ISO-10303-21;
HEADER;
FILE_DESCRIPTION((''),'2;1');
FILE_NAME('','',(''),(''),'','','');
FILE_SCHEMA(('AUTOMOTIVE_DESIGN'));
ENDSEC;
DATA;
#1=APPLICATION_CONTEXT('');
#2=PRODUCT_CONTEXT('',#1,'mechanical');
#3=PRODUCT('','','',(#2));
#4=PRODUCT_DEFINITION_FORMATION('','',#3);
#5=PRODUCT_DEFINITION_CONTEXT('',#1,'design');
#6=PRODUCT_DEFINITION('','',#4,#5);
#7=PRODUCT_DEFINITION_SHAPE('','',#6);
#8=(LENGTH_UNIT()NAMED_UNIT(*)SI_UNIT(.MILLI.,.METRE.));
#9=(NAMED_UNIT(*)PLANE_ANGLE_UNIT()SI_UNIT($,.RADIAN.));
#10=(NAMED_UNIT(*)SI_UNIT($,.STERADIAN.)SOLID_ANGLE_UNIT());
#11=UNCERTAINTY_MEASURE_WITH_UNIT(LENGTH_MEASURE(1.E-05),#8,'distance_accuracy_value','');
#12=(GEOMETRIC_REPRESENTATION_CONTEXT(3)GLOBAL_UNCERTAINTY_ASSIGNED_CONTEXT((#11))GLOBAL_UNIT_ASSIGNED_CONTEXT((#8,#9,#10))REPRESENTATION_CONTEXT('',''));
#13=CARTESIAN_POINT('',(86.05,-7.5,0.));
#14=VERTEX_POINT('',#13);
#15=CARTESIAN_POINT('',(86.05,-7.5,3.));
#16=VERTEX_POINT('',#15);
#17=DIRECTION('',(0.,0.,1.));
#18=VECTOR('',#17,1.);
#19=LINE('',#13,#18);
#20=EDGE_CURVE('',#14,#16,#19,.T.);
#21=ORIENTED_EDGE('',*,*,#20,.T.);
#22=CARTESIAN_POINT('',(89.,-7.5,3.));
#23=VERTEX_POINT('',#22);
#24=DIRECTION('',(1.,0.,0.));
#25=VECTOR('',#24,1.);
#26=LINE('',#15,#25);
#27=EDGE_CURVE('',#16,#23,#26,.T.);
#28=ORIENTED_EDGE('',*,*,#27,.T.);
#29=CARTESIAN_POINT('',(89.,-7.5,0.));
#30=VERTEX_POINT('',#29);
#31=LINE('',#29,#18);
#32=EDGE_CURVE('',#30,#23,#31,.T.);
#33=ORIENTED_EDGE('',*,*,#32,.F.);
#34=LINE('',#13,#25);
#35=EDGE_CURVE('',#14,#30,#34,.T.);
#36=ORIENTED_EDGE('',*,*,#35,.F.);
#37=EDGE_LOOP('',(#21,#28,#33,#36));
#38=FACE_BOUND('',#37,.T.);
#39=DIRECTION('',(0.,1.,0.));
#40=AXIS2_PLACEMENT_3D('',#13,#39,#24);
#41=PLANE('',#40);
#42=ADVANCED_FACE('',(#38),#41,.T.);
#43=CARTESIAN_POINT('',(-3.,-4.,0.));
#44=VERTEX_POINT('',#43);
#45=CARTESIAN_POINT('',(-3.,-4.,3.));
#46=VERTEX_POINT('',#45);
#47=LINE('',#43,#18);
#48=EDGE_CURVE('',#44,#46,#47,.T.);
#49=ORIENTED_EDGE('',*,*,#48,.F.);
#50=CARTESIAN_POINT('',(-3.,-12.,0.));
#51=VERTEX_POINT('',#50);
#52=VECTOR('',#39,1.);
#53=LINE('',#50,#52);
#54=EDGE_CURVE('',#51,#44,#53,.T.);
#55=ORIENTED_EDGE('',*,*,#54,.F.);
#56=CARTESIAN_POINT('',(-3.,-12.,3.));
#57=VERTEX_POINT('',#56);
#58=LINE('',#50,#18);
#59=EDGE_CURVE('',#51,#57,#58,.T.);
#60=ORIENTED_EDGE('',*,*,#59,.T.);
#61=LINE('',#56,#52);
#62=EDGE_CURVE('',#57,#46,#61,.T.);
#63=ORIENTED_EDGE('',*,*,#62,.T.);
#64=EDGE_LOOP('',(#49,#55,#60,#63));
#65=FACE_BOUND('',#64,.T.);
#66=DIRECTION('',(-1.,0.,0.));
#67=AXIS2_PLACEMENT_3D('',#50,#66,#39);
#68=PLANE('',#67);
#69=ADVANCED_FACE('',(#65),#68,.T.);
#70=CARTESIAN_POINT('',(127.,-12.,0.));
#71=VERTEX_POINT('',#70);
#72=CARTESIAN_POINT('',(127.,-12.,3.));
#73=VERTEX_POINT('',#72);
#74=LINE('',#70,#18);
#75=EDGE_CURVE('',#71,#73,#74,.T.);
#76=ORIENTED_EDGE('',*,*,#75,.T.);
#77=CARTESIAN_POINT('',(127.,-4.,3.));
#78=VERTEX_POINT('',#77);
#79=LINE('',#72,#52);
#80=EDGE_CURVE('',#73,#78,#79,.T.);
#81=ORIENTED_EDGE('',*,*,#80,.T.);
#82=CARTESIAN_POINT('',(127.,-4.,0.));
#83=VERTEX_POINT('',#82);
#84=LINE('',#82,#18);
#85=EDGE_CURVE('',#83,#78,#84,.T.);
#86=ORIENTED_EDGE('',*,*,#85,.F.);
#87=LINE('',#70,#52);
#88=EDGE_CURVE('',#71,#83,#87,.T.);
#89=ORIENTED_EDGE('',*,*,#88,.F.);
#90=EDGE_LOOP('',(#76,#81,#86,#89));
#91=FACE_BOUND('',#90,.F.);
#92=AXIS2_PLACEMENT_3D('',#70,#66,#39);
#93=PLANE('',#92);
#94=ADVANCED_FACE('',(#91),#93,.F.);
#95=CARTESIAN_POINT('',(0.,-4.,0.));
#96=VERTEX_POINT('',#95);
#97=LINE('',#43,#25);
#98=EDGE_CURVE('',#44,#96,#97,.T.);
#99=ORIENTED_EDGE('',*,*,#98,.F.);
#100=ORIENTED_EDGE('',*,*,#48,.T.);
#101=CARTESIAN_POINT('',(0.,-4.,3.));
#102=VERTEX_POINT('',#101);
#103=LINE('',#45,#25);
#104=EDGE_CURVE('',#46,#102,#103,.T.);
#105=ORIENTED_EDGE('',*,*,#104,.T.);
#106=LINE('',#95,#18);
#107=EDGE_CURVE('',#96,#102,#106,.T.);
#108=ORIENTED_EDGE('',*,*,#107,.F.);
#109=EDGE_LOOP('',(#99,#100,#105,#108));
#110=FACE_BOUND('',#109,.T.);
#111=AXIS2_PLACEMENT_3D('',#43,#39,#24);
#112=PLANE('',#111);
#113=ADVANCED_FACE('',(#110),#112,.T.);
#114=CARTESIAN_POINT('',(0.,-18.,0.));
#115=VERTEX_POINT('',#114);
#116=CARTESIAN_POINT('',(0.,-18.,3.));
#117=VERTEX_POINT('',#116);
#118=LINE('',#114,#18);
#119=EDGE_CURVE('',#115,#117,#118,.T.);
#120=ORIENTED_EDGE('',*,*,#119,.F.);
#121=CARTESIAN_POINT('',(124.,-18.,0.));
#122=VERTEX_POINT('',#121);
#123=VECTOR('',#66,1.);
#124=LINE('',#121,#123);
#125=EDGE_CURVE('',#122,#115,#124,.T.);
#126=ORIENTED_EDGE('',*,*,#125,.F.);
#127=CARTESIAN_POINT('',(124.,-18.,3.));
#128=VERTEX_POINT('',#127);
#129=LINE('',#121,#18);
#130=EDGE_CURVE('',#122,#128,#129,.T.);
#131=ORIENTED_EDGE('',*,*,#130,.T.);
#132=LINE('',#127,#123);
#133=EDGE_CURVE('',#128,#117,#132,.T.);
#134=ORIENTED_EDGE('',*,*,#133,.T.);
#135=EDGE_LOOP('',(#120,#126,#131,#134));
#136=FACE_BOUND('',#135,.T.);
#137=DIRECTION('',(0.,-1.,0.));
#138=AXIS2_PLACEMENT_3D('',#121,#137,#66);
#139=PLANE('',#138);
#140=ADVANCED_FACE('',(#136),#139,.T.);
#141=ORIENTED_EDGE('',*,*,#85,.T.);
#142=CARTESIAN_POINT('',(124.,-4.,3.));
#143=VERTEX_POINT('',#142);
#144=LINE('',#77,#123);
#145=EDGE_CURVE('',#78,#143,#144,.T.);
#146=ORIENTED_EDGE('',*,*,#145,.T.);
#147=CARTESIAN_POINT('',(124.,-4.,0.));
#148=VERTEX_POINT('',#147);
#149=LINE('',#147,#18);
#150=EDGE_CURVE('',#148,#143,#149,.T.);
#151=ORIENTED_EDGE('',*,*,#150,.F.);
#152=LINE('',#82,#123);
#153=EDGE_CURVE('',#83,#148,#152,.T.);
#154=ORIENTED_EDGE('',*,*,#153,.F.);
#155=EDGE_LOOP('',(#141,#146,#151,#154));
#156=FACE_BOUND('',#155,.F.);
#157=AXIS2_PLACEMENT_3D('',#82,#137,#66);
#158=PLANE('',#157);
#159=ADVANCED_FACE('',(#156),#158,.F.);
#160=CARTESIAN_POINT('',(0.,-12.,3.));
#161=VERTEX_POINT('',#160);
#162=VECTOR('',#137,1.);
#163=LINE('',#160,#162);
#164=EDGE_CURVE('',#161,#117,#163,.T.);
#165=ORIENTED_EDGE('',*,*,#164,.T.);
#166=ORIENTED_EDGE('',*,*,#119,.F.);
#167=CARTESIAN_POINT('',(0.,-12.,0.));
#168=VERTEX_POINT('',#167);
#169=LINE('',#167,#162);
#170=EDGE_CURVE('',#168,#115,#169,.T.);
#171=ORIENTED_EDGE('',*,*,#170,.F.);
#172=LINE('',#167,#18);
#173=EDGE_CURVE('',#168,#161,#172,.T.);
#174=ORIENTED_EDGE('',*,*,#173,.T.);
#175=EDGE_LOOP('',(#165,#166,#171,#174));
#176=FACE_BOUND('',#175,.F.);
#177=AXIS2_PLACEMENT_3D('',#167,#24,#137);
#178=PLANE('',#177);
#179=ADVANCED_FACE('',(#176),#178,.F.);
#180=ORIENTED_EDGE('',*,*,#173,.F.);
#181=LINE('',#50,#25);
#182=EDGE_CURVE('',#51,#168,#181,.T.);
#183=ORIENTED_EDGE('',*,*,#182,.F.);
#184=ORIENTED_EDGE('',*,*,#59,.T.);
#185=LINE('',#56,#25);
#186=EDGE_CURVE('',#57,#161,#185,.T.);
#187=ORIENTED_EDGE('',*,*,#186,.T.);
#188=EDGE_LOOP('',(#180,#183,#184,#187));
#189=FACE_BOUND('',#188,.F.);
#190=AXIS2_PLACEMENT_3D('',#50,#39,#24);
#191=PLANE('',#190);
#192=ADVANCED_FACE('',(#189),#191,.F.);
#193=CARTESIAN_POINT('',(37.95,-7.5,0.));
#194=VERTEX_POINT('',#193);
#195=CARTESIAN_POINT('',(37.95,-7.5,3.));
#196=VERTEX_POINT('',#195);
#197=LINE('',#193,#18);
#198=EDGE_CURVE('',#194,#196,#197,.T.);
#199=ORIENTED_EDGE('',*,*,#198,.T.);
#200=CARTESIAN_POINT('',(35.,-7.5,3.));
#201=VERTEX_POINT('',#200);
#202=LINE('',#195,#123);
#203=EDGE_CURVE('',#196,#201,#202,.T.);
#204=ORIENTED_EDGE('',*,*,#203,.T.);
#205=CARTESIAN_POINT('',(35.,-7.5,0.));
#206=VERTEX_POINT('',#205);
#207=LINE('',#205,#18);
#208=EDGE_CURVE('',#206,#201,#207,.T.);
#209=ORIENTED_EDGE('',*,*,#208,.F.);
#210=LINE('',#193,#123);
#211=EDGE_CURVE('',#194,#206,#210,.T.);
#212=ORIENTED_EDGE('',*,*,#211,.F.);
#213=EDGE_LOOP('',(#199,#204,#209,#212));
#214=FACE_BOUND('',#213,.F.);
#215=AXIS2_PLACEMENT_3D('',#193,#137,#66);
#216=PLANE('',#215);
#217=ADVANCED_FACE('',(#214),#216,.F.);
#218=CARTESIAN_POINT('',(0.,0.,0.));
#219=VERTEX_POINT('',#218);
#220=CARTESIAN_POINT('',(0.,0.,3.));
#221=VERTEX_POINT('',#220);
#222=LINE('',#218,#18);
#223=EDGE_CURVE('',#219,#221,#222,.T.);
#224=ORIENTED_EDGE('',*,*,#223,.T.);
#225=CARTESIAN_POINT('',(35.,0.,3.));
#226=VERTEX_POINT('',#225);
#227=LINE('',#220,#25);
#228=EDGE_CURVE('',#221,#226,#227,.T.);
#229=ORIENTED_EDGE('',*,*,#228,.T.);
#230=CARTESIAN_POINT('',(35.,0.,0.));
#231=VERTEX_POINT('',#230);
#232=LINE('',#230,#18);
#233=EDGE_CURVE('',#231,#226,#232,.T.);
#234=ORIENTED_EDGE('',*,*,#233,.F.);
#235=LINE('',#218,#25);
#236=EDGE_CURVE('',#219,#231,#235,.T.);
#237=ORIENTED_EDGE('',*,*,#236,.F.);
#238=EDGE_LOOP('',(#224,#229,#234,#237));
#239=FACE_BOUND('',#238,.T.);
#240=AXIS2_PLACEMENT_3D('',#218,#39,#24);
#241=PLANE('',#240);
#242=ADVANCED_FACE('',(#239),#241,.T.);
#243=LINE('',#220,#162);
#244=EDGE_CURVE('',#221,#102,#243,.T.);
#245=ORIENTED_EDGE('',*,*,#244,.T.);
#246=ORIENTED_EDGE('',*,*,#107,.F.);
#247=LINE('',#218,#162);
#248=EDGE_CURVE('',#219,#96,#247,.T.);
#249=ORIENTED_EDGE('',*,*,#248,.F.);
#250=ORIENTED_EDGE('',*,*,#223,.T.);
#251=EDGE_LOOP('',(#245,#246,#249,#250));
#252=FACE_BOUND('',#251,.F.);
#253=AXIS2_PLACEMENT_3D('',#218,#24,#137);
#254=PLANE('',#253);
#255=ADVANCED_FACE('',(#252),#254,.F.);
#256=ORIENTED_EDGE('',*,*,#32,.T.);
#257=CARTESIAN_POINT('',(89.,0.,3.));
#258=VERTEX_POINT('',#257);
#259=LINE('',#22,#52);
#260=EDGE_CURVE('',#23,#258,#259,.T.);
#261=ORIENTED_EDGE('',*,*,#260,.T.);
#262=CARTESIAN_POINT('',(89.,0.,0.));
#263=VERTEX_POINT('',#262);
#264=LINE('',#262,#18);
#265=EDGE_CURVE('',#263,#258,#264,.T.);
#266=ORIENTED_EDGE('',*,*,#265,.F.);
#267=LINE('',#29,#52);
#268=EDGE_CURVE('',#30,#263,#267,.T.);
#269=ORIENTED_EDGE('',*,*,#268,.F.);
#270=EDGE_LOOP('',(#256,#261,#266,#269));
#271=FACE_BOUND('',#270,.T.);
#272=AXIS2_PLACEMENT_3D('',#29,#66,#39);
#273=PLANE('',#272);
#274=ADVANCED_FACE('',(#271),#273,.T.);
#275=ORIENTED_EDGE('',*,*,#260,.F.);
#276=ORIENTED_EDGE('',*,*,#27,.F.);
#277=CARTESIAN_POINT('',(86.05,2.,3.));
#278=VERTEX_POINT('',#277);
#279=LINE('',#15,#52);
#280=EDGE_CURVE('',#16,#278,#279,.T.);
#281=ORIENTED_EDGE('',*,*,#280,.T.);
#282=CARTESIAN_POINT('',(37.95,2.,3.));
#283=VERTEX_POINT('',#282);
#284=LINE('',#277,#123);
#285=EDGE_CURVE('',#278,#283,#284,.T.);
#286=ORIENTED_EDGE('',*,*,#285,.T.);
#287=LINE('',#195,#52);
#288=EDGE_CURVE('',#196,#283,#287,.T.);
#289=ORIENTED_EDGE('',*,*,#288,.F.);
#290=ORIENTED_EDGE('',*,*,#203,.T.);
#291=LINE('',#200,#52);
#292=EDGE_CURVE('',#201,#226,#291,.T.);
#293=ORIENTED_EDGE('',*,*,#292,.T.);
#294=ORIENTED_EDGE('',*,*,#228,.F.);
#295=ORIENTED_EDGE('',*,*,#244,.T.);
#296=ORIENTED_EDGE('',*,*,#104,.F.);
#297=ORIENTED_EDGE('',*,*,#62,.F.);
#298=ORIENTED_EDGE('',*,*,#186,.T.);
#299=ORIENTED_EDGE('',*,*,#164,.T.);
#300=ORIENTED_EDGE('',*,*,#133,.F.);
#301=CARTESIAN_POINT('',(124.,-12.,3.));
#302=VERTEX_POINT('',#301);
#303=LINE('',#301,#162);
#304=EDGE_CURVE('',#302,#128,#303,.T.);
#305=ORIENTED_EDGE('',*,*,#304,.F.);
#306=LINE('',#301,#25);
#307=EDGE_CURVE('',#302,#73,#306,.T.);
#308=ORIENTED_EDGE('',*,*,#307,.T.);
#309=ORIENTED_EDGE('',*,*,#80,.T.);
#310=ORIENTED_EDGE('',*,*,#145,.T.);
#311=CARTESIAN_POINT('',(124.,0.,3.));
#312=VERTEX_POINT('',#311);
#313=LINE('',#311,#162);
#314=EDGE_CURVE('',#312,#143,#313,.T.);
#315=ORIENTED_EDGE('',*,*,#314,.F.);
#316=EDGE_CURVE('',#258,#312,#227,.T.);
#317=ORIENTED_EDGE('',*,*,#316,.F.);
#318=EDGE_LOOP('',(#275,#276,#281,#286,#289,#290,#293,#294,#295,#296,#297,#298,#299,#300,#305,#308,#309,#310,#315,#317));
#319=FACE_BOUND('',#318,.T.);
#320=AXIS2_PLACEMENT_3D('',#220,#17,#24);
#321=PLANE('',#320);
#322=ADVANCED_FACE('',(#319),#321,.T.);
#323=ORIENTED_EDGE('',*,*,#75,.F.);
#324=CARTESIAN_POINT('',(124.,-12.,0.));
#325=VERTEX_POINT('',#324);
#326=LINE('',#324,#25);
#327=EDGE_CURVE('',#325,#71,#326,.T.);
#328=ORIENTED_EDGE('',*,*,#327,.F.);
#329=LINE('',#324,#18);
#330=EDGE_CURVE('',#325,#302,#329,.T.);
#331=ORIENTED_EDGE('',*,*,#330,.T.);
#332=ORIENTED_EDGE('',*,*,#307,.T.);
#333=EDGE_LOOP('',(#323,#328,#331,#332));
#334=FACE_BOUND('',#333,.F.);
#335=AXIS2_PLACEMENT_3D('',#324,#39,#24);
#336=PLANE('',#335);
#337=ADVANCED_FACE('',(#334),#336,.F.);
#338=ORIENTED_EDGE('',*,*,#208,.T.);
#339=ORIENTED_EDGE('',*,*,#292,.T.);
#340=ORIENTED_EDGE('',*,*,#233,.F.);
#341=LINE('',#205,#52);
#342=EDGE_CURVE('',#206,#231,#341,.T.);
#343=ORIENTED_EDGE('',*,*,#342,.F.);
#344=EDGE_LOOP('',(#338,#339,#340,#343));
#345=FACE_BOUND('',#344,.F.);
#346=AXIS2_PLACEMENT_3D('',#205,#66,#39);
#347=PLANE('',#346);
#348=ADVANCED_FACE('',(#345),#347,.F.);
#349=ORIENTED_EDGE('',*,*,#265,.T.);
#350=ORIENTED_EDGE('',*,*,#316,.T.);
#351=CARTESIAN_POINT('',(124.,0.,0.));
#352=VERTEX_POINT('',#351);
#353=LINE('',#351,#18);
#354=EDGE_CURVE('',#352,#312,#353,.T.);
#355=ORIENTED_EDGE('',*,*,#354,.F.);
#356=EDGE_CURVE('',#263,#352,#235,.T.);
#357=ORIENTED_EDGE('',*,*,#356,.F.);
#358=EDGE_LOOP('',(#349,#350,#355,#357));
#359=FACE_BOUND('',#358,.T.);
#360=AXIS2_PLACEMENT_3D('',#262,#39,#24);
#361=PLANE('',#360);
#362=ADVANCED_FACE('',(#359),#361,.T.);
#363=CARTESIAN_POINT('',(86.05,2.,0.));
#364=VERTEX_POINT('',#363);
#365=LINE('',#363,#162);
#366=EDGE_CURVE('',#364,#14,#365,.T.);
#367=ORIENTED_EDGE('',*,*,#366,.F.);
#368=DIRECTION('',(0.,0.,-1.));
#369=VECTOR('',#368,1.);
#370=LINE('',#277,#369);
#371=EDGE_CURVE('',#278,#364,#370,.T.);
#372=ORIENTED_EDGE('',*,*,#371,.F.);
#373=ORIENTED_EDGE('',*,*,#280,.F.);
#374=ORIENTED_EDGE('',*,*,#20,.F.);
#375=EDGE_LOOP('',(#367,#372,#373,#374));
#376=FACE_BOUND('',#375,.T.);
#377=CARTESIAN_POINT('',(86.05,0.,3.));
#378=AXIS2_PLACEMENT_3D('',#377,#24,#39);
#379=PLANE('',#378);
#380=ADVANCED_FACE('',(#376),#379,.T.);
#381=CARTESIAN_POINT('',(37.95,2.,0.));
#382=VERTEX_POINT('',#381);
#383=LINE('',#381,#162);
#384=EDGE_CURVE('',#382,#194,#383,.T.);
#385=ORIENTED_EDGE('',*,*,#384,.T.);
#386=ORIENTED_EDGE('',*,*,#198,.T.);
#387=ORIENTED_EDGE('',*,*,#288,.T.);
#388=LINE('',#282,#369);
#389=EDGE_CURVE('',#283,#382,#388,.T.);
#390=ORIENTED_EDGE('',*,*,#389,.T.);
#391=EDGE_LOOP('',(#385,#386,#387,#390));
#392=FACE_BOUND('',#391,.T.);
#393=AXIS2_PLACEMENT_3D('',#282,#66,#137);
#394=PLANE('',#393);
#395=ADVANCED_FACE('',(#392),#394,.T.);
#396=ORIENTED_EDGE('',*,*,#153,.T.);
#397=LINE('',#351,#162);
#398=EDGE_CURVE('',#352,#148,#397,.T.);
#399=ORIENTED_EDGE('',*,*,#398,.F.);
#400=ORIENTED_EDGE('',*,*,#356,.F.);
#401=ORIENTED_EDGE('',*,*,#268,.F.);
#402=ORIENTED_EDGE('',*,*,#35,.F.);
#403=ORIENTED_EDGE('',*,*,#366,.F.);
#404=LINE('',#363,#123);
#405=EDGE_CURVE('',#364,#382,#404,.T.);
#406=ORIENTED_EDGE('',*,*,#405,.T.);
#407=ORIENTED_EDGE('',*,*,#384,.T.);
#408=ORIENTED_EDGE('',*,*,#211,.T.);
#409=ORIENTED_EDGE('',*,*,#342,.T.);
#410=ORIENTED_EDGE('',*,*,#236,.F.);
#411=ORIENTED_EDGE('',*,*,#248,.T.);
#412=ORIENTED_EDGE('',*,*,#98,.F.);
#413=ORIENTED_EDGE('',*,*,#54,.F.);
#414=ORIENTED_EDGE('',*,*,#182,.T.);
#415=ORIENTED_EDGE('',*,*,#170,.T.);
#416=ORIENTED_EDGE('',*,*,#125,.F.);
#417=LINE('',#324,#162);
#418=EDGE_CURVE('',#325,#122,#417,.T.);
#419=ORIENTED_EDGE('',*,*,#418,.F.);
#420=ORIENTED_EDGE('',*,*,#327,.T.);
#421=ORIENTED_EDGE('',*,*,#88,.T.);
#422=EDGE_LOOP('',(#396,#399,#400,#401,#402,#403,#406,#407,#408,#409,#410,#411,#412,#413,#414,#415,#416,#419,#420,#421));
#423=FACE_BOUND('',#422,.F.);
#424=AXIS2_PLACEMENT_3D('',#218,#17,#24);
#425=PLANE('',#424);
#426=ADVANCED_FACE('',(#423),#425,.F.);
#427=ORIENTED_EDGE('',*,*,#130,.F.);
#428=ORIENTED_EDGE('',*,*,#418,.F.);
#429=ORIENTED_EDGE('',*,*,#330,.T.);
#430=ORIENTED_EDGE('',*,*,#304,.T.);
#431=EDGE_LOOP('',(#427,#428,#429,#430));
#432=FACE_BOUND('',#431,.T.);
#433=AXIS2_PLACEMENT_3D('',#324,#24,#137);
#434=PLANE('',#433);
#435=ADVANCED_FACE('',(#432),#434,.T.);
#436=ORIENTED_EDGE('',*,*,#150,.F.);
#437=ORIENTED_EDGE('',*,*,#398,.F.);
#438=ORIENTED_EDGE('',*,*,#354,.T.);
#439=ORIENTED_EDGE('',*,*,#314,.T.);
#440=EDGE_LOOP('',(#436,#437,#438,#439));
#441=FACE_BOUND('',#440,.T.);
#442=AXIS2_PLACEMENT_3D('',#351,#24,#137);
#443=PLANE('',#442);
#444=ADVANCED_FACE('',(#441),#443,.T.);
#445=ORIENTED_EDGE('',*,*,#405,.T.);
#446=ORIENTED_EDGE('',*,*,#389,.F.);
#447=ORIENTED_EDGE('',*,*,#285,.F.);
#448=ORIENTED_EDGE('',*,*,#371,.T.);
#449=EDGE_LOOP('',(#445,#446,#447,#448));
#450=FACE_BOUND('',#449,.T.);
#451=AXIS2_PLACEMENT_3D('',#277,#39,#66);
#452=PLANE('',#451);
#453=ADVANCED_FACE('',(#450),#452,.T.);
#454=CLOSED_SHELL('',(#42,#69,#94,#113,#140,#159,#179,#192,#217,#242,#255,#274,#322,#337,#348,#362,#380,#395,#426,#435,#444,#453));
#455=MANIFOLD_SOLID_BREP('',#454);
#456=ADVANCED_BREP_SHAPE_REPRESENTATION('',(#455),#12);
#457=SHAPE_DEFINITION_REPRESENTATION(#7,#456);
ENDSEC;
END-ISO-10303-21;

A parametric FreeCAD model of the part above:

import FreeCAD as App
import Part
import Sketcher
from FreeCAD import Vector
Q = App.Units.Quantity

doc = App.newDocument("Part")
body = doc.addObject("PartDesign::Body", "Body")

# Sketch on XY plane
sketch1 = doc.addObject("Sketcher::SketchObject", "Sketch")
body.addObject(sketch1)
sketch1.AttachmentSupport = (doc.XY_Plane, [""])
sketch1.MapMode = "FlatFace"
sketch1.addGeometry([
    Part.LineSegment(Vector(35, 0, 0), Vector(0, 0, 0)),  # 0
    Part.LineSegment(Vector(0, 0, 0), Vector(0, -4, 0)),  # 1
    Part.LineSegment(Vector(0, -4, 0), Vector(-3, -4, 0)),  # 2
    Part.LineSegment(Vector(-3, -4, 0), Vector(-3, -12, 0)),  # 3
    Part.LineSegment(Vector(-3, -12, 0), Vector(0, -12, 0)),  # 4
    Part.LineSegment(Vector(0, -12, 0), Vector(0, -18, 0)),  # 5
    Part.LineSegment(Vector(0, -18, 0), Vector(124, -18, 0)),  # 6
    Part.LineSegment(Vector(124, -18, 0), Vector(124, -12, 0)),  # 7
    Part.LineSegment(Vector(124, -12, 0), Vector(127, -12, 0)),  # 8
    Part.LineSegment(Vector(127, -12, 0), Vector(127, -4, 0)),  # 9
    Part.LineSegment(Vector(127, -4, 0), Vector(124, -4, 0)),  # 10
    Part.LineSegment(Vector(124, -4, 0), Vector(124, 0, 0)),  # 11
    Part.LineSegment(Vector(124, 0, 0), Vector(89, 0, 0)),  # 12
    Part.LineSegment(Vector(89, 0, 0), Vector(89, -7.5, 0)),  # 13
    Part.LineSegment(Vector(89, -7.5, 0), Vector(86, -7.5, 0)),  # 14
    Part.LineSegment(Vector(86, -7.5, 0), Vector(86, 0, 0)),  # 15
    Part.LineSegment(Vector(86, 0, 0), Vector(38, 0, 0)),  # 16
    Part.LineSegment(Vector(38, 0, 0), Vector(38, -7.5, 0)),  # 17
    Part.LineSegment(Vector(38, -7.5, 0), Vector(35, -7.5, 0)),  # 18
    Part.LineSegment(Vector(35, -7.5, 0), Vector(35, 0, 0)),  # 19
], False)
sketch1.addConstraint([
    Sketcher.Constraint("Coincident", 0, 2, 1, 1),
    Sketcher.Constraint("Coincident", 1, 2, 2, 1),
    Sketcher.Constraint("Coincident", 2, 2, 3, 1),
    Sketcher.Constraint("Coincident", 3, 2, 4, 1),
    Sketcher.Constraint("Coincident", 4, 2, 5, 1),
    Sketcher.Constraint("Coincident", 5, 2, 6, 1),
    Sketcher.Constraint("Coincident", 6, 2, 7, 1),
    Sketcher.Constraint("Coincident", 7, 2, 8, 1),
    Sketcher.Constraint("Coincident", 8, 2, 9, 1),
    Sketcher.Constraint("Coincident", 9, 2, 10, 1),
    Sketcher.Constraint("Coincident", 10, 2, 11, 1),
    Sketcher.Constraint("Coincident", 11, 2, 12, 1),
    Sketcher.Constraint("Coincident", 12, 2, 13, 1),
    Sketcher.Constraint("Coincident", 13, 2, 14, 1),
    Sketcher.Constraint("Coincident", 14, 2, 15, 1),
    Sketcher.Constraint("Coincident", 15, 2, 16, 1),
    Sketcher.Constraint("Coincident", 16, 2, 17, 1),
    Sketcher.Constraint("Coincident", 17, 2, 18, 1),
    Sketcher.Constraint("Coincident", 18, 2, 19, 1),
    Sketcher.Constraint("Coincident", 19, 2, 0, 1),
    Sketcher.Constraint("Horizontal", 0),
    Sketcher.Constraint("Vertical", 1),
    Sketcher.Constraint("Horizontal", 2),
    Sketcher.Constraint("Vertical", 3),
    Sketcher.Constraint("Horizontal", 4),
    Sketcher.Constraint("Vertical", 5),
    Sketcher.Constraint("Horizontal", 6),
    Sketcher.Constraint("Vertical", 7),
    Sketcher.Constraint("Horizontal", 8),
    Sketcher.Constraint("Vertical", 9),
    Sketcher.Constraint("Horizontal", 10),
    Sketcher.Constraint("Vertical", 11),
    Sketcher.Constraint("Horizontal", 12),
    Sketcher.Constraint("Vertical", 13),
    Sketcher.Constraint("Horizontal", 14),
    Sketcher.Constraint("Vertical", 15),
    Sketcher.Constraint("Horizontal", 16),
    Sketcher.Constraint("Vertical", 17),
    Sketcher.Constraint("Horizontal", 18),
    Sketcher.Constraint("Vertical", 19),
    Sketcher.Constraint("Coincident", 0, 2, -1, 1),
    Sketcher.Constraint("PointOnObject", 4, 2, -2),
    Sketcher.Constraint("PointOnObject", 11, 2, -1),
    Sketcher.Constraint("PointOnObject", 15, 2, -1),
    Sketcher.Constraint("Horizontal", 4, 2, 7, 2),
    Sketcher.Constraint("Horizontal", 2, 2, 9, 2),
    Sketcher.Constraint("Horizontal", 14, 2, 17, 2),
    Sketcher.Constraint("Vertical", 7, 2, 10, 2),
    Sketcher.Constraint("Equal", 4, 8),
    Sketcher.Constraint("Equal", 0, 12),
    Sketcher.Constraint("Equal", 14, 18),
    Sketcher.Constraint("DistanceX", 0, 2, 0, 1, Q("35 mm")),
    Sketcher.Constraint("DistanceX", 2, 2, 2, 1, Q("3 mm")),
    Sketcher.Constraint("DistanceX", 6, 1, 6, 2, Q("124 mm")),
    Sketcher.Constraint("DistanceY", 1, 2, 1, 1, Q("4 mm")),
    Sketcher.Constraint("DistanceY", 3, 2, 3, 1, Q("8 mm")),
    Sketcher.Constraint("DistanceY", 13, 2, 13, 1, Q("7.5 mm")),
    Sketcher.Constraint("DistanceX", 14, 2, 14, 1, Q("2.95 mm")),
    Sketcher.Constraint("DistanceY", 6, 2, 13, 2, Q("10.5 mm")),
])
pad1 = doc.addObject("PartDesign::Pad", "Pad")
body.addObject(pad1)
pad1.Profile = sketch1
pad1.Length = 3

# Sketch on XY plane
sketch2 = doc.addObject("Sketcher::SketchObject", "Sketch001")
body.addObject(sketch2)
sketch2.AttachmentSupport = (doc.XY_Plane, [""])
sketch2.MapMode = "FlatFace"
sketch2.AttachmentOffset = App.Placement(Vector(0, 0, 3), App.Rotation())
sketch2.addGeometry([
    Part.LineSegment(Vector(38, 2, 0), Vector(38, 0, 0)),
    Part.LineSegment(Vector(38, 0, 0), Vector(86, 0, 0)),
    Part.LineSegment(Vector(86, 0, 0), Vector(86, 2, 0)),
    Part.LineSegment(Vector(86, 2, 0), Vector(38, 2, 0)),
], False)
sketch2.addConstraint([
    Sketcher.Constraint("Coincident", 0, 2, 1, 1),
    Sketcher.Constraint("Coincident", 1, 2, 2, 1),
    Sketcher.Constraint("Coincident", 2, 2, 3, 1),
    Sketcher.Constraint("Coincident", 3, 2, 0, 1),
    Sketcher.Constraint("Vertical", 0),
    Sketcher.Constraint("Horizontal", 1),
    Sketcher.Constraint("Vertical", 2),
    Sketcher.Constraint("Horizontal", 3),
    Sketcher.Constraint("PointOnObject", 0, 2, -1),
    Sketcher.Constraint("DistanceY", 0, 2, 0, 1, Q("2 mm")),
    Sketcher.Constraint("DistanceX", 1, 1, 1, 2, Q("48.1 mm")),
    Sketcher.Constraint("DistanceX", -1, 1, 0, 2, Q("37.95 mm")),
])
pad2 = doc.addObject("PartDesign::Pad", "Pad001")
body.addObject(pad2)
pad2.Profile = sketch2
pad2.Length = 3
pad2.Reversed = True

doc.recompute()
